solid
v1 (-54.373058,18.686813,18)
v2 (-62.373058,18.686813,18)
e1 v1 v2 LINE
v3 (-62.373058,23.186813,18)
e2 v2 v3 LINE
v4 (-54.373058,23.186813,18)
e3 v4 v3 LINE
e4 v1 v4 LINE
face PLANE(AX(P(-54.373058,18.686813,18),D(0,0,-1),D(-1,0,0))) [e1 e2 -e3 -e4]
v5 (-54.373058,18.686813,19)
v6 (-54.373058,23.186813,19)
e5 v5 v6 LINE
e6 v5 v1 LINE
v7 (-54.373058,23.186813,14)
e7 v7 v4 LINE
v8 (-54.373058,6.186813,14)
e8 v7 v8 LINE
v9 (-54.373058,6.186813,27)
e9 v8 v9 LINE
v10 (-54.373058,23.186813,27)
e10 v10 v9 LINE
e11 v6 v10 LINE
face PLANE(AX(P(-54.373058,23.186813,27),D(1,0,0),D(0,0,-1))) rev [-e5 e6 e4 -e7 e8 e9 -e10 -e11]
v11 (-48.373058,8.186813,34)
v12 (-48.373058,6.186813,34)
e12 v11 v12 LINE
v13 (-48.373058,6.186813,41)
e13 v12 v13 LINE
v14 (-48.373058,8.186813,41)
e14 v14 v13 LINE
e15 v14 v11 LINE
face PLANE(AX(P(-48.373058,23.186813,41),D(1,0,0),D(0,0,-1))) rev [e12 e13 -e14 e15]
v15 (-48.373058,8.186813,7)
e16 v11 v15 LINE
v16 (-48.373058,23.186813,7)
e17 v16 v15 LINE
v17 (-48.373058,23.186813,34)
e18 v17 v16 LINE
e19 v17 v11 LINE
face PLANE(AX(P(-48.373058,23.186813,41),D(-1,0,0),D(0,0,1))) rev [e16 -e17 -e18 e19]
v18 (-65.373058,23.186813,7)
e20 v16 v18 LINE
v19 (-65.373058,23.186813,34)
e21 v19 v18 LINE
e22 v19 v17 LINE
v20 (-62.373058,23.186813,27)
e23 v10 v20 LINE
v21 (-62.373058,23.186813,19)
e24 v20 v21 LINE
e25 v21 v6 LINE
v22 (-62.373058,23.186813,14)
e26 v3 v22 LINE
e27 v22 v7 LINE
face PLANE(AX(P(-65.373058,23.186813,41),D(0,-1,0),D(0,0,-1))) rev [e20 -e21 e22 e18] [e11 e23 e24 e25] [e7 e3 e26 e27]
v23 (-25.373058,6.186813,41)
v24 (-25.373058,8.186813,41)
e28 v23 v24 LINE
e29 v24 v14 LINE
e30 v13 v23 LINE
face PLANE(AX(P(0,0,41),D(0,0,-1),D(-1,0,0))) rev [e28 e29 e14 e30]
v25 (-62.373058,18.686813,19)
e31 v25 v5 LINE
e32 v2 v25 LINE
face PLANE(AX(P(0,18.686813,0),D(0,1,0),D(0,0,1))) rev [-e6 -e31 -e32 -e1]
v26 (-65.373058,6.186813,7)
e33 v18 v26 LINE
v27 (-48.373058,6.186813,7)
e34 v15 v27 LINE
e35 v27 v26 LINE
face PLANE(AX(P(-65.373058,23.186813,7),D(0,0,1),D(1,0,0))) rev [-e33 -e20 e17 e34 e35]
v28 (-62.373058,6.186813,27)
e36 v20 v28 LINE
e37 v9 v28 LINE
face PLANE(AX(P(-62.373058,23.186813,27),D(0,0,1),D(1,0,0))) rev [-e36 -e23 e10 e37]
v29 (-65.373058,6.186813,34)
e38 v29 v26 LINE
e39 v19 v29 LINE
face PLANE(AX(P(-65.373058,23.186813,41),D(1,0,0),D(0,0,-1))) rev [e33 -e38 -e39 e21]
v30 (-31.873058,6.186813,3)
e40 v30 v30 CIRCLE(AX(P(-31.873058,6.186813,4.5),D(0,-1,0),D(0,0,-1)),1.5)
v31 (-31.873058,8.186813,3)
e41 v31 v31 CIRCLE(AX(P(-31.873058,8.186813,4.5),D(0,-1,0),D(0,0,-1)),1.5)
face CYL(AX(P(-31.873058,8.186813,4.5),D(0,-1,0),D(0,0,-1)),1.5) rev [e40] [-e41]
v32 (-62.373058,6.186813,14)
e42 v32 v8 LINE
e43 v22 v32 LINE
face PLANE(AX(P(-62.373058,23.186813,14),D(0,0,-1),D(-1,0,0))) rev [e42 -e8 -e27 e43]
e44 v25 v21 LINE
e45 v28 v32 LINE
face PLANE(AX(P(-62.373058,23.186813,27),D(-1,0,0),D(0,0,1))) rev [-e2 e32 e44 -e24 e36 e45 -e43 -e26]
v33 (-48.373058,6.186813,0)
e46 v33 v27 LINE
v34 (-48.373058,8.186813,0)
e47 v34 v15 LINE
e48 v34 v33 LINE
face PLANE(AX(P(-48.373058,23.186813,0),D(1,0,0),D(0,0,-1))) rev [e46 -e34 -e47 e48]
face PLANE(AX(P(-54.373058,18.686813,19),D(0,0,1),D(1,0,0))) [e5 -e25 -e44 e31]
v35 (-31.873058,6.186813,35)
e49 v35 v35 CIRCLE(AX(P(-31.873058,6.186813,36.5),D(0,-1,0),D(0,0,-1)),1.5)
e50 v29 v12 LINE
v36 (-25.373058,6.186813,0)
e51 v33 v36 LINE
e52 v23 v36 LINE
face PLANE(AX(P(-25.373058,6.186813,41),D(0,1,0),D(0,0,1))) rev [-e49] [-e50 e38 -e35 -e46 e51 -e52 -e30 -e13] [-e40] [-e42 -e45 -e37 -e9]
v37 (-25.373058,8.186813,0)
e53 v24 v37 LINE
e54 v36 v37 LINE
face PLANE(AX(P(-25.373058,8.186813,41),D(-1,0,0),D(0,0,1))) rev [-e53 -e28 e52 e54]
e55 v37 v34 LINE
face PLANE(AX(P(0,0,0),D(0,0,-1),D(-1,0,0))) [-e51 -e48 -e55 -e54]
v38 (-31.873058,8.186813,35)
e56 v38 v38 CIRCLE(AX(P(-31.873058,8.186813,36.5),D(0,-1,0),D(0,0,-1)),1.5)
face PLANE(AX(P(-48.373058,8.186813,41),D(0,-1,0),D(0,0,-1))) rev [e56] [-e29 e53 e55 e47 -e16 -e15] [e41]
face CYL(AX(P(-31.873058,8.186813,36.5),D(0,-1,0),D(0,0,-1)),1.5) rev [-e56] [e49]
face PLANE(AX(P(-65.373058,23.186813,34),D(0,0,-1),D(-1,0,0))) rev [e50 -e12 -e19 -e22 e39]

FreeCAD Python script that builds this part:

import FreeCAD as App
import Part
import Sketcher
from FreeCAD import Vector
Q = App.Units.Quantity

doc = App.newDocument("Part")
params = doc.addObject("Spreadsheet::Sheet", "Params")
for row, (alias, value) in enumerate([
    ("sketch1_width", "17 mm"),
    ("sketch1_width2", "40 mm"),
    ("sketch1_height", "2 mm"),
    ("pad1_length", "41 mm"),
    ("sketch2_diameter", "3 mm"),
    ("pocket1_length", "2 mm"),
    ("sketch3_width", "8 mm"),
    ("sketch3_width2", "17 mm"),
    ("sketch3_height", "13 mm"),
    ("sketch3_height2", "7 mm"),
    ("pocket2_length", "17 mm"),
    ("sketch4_width", "8 mm"),
    ("sketch4_height", "1 mm"),
    ("pad2_length", "4.5 mm"),
], start=1):
    params.set(f"A{row}", alias)
    params.set(f"B{row}", "=" + value)
    params.setAlias(f"B{row}", alias)

body = doc.addObject("PartDesign::Body", "Body")

# Sketch on XY plane
sketch1 = body.newObject("Sketcher::SketchObject", "Sketch")
sketch1.AttachmentSupport = (doc.getObject("XY_Plane"), [""])
sketch1.MapMode = "FlatFace"
sketch1.addGeometry(Part.LineSegment(Vector(-48.4, 23.2, 0), Vector(-65.4, 23.2, 0)), False)
sketch1.addGeometry(Part.LineSegment(Vector(-65.4, 23.2, 0), Vector(-65.4, 6.2, 0)), False)
sketch1.addGeometry(Part.LineSegment(Vector(-65.4, 6.2, 0), Vector(-25.4, 6.2, 0)), False)
sketch1.addGeometry(Part.LineSegment(Vector(-25.4, 6.2, 0), Vector(-25.4, 8.2, 0)), False)
sketch1.addGeometry(Part.LineSegment(Vector(-25.4, 8.2, 0), Vector(-48.4, 8.2, 0)), False)
sketch1.addGeometry(Part.LineSegment(Vector(-48.4, 8.2, 0), Vector(-48.4, 23.2, 0)), False)
sketch1.addConstraint(Sketcher.Constraint("Coincident", 0, 2, 1, 1))
sketch1.addConstraint(Sketcher.Constraint("Coincident", 1, 2, 2, 1))
sketch1.addConstraint(Sketcher.Constraint("Coincident", 2, 2, 3, 1))
sketch1.addConstraint(Sketcher.Constraint("Coincident", 3, 2, 4, 1))
sketch1.addConstraint(Sketcher.Constraint("Coincident", 4, 2, 5, 1))
sketch1.addConstraint(Sketcher.Constraint("Coincident", 5, 2, 0, 1))
sketch1.addConstraint(Sketcher.Constraint("Horizontal", 0))
sketch1.addConstraint(Sketcher.Constraint("Vertical", 1))
sketch1.addConstraint(Sketcher.Constraint("Horizontal", 2))
sketch1.addConstraint(Sketcher.Constraint("Vertical", 3))
sketch1.addConstraint(Sketcher.Constraint("Horizontal", 4))
sketch1.addConstraint(Sketcher.Constraint("Vertical", 5))
sketch1.addConstraint(Sketcher.Constraint("Equal", 0, 1))
sketch1.addConstraint(Sketcher.Constraint("DistanceX", 0, 2, 0, 1, Q("17 mm")))
sketch1.addConstraint(Sketcher.Constraint("DistanceX", 2, 1, 2, 2, Q("40 mm")))
sketch1.addConstraint(Sketcher.Constraint("DistanceY", 3, 1, 3, 2, Q("2 mm")))
sketch1.addConstraint(Sketcher.Constraint("DistanceX", 0, 2, -1, 1, Q("65.373058 mm")))
sketch1.addConstraint(Sketcher.Constraint("DistanceY", -1, 1, 0, 2, Q("23.186813 mm")))
sketch1.setExpression("Constraints[13]", "Params.sketch1_width")
sketch1.setExpression("Constraints[14]", "Params.sketch1_width2")
sketch1.setExpression("Constraints[15]", "Params.sketch1_height")
pad1 = body.newObject("PartDesign::Pad", "Pad")
pad1.Profile = sketch1
pad1.setExpression("Length", "Params.pad1_length")

# Sketch on XZ plane
sketch2 = body.newObject("Sketcher::SketchObject", "Sketch001")
sketch2.AttachmentSupport = (doc.getObject("XZ_Plane"), [""])
sketch2.MapMode = "FlatFace"
sketch2.AttachmentOffset = App.Placement(Vector(0, 0, -6.186813), App.Rotation())
sketch2.addGeometry(Part.Circle(Vector(-31.9, 36.5, 0), Vector(0, 0, 1), 1.5), False)
sketch2.addGeometry(Part.Circle(Vector(-31.9, 4.5, 0), Vector(0, 0, 1), 1.5), False)
sketch2.addConstraint(Sketcher.Constraint("Equal", 0, 1))
sketch2.addConstraint(Sketcher.Constraint("Vertical", 0, 3, 1, 3))
sketch2.addConstraint(Sketcher.Constraint("Diameter", 0, Q("3 mm")))
sketch2.addConstraint(Sketcher.Constraint("DistanceY", 1, 3, 0, 3, Q("32 mm")))
sketch2.addConstraint(Sketcher.Constraint("DistanceY", -1, 1, 0, 3, Q("36.5 mm")))
sketch2.addConstraint(Sketcher.Constraint("DistanceX", 0, 3, -1, 1, Q("31.873058 mm")))
sketch2.setExpression("Constraints[2]", "Params.sketch2_diameter")
pocket1 = body.newObject("PartDesign::Pocket", "Pocket")
pocket1.Profile = sketch2
pocket1.setExpression("Length", "Params.pocket1_length")

# Sketch on XZ plane
sketch3 = body.newObject("Sketcher::SketchObject", "Sketch002")
sketch3.AttachmentSupport = (doc.getObject("XZ_Plane"), [""])
sketch3.MapMode = "FlatFace"
sketch3.AttachmentOffset = App.Placement(Vector(0, 0, -23.186813), App.Rotation())
sketch3.addGeometry(Part.LineSegment(Vector(-62, 27, 0), Vector(-62, 14, 0)), False)
sketch3.addGeometry(Part.LineSegment(Vector(-62, 14, 0), Vector(-54, 14, 0)), False)
sketch3.addGeometry(Part.LineSegment(Vector(-54, 14, 0), Vector(-54, 27, 0)), False)
sketch3.addGeometry(Part.LineSegment(Vector(-54, 27, 0), Vector(-62, 27, 0)), False)
sketch3.addGeometry(Part.LineSegment(Vector(-65, 41, 0), Vector(-65, 34, 0)), False)
sketch3.addGeometry(Part.LineSegment(Vector(-65, 34, 0), Vector(-48, 34, 0)), False)
sketch3.addGeometry(Part.LineSegment(Vector(-48, 34, 0), Vector(-48, 41, 0)), False)
sketch3.addGeometry(Part.LineSegment(Vector(-48, 41, 0), Vector(-65, 41, 0)), False)
sketch3.addGeometry(Part.LineSegment(Vector(-65, 7, 0), Vector(-65, 0, 0)), False)
sketch3.addGeometry(Part.LineSegment(Vector(-65, 0, 0), Vector(-48, 0, 0)), False)
sketch3.addGeometry(Part.LineSegment(Vector(-48, 0, 0), Vector(-48, 7, 0)), False)
sketch3.addGeometry(Part.LineSegment(Vector(-48, 7, 0), Vector(-65, 7, 0)), False)
sketch3.addConstraint(Sketcher.Constraint("Coincident", 0, 2, 1, 1))
sketch3.addConstraint(Sketcher.Constraint("Coincident", 1, 2, 2, 1))
sketch3.addConstraint(Sketcher.Constraint("Coincident", 2, 2, 3, 1))
sketch3.addConstraint(Sketcher.Constraint("Coincident", 3, 2, 0, 1))
sketch3.addConstraint(Sketcher.Constraint("Coincident", 4, 2, 5, 1))
sketch3.addConstraint(Sketcher.Constraint("Coincident", 5, 2, 6, 1))
sketch3.addConstraint(Sketcher.Constraint("Coincident", 6, 2, 7, 1))
sketch3.addConstraint(Sketcher.Constraint("Coincident", 7, 2, 4, 1))
sketch3.addConstraint(Sketcher.Constraint("Coincident", 8, 2, 9, 1))
sketch3.addConstraint(Sketcher.Constraint("Coincident", 9, 2, 10, 1))
sketch3.addConstraint(Sketcher.Constraint("Coincident", 10, 2, 11, 1))
sketch3.addConstraint(Sketcher.Constraint("Coincident", 11, 2, 8, 1))
sketch3.addConstraint(Sketcher.Constraint("Vertical", 0))
sketch3.addConstraint(Sketcher.Constraint("Horizontal", 1))
sketch3.addConstraint(Sketcher.Constraint("Vertical", 2))
sketch3.addConstraint(Sketcher.Constraint("Horizontal", 3))
sketch3.addConstraint(Sketcher.Constraint("Vertical", 4))
sketch3.addConstraint(Sketcher.Constraint("Horizontal", 5))
sketch3.addConstraint(Sketcher.Constraint("Vertical", 6))
sketch3.addConstraint(Sketcher.Constraint("Horizontal", 7))
sketch3.addConstraint(Sketcher.Constraint("Vertical", 8))
sketch3.addConstraint(Sketcher.Constraint("Horizontal", 9))
sketch3.addConstraint(Sketcher.Constraint("Vertical", 10))
sketch3.addConstraint(Sketcher.Constraint("Horizontal", 11))
sketch3.addConstraint(Sketcher.Constraint("PointOnObject", 8, 2, -1))
sketch3.addConstraint(Sketcher.Constraint("Vertical", 7, 2, 8, 2))
sketch3.addConstraint(Sketcher.Constraint("Vertical", 6, 2, 9, 2))
sketch3.addConstraint(Sketcher.Constraint("Equal", 6, 8))
sketch3.addConstraint(Sketcher.Constraint("DistanceX", 1, 1, 1, 2, Q("8 mm")))
sketch3.addConstraint(Sketcher.Constraint("DistanceX", 5, 1, 5, 2, Q("17 mm")))
sketch3.addConstraint(Sketcher.Constraint("DistanceY", 0, 2, 0, 1, Q("13 mm")))
sketch3.addConstraint(Sketcher.Constraint("DistanceY", 4, 2, 4, 1, Q("7 mm")))
sketch3.addConstraint(Sketcher.Constraint("DistanceY", -1, 1, 0, 2, Q("14 mm")))
sketch3.addConstraint(Sketcher.Constraint("DistanceY", -1, 1, 4, 2, Q("34 mm")))
sketch3.addConstraint(Sketcher.Constraint("DistanceX", 4, 2, 3, 2, Q("3 mm")))
sketch3.addConstraint(Sketcher.Constraint("DistanceX", 0, 2, -1, 1, Q("62.373058 mm")))
sketch3.setExpression("Constraints[28]", "Params.sketch3_width")
sketch3.setExpression("Constraints[29]", "Params.sketch3_width2")
sketch3.setExpression("Constraints[30]", "Params.sketch3_height")
sketch3.setExpression("Constraints[31]", "Params.sketch3_height2")
pocket2 = body.newObject("PartDesign::Pocket", "Pocket001")
pocket2.Profile = sketch3
pocket2.setExpression("Length", "Params.pocket2_length")
pocket2.Reversed = True

# Sketch on XZ plane
sketch4 = body.newObject("Sketcher::SketchObject", "Sketch003")
sketch4.AttachmentSupport = (doc.getObject("XZ_Plane"), [""])
sketch4.MapMode = "FlatFace"
sketch4.AttachmentOffset = App.Placement(Vector(0, 0, -23.186813), App.Rotation())
sketch4.addGeometry(Part.LineSegment(Vector(-62.4, 18, 0), Vector(-62.4, 19, 0)), False)
sketch4.addGeometry(Part.LineSegment(Vector(-62.4, 19, 0), Vector(-54.4, 19, 0)), False)
sketch4.addGeometry(Part.LineSegment(Vector(-54.4, 19, 0), Vector(-54.4, 18, 0)), False)
sketch4.addGeometry(Part.LineSegment(Vector(-54.4, 18, 0), Vector(-62.4, 18, 0)), False)
sketch4.addConstraint(Sketcher.Constraint("Coincident", 0, 2, 1, 1))
sketch4.addConstraint(Sketcher.Constraint("Coincident", 1, 2, 2, 1))
sketch4.addConstraint(Sketcher.Constraint("Coincident", 2, 2, 3, 1))
sketch4.addConstraint(Sketcher.Constraint("Coincident", 3, 2, 0, 1))
sketch4.addConstraint(Sketcher.Constraint("Vertical", 0))
sketch4.addConstraint(Sketcher.Constraint("Horizontal", 1))
sketch4.addConstraint(Sketcher.Constraint("Vertical", 2))
sketch4.addConstraint(Sketcher.Constraint("Horizontal", 3))
sketch4.addConstraint(Sketcher.Constraint("DistanceX", 1, 1, 1, 2, Q("8 mm")))
sketch4.addConstraint(Sketcher.Constraint("DistanceY", 0, 1, 0, 2, Q("1 mm")))
sketch4.addConstraint(Sketcher.Constraint("DistanceY", -1, 1, 0, 2, Q("19 mm")))
sketch4.addConstraint(Sketcher.Constraint("DistanceX", 0, 2, -1, 1, Q("62.373058 mm")))
sketch4.setExpression("Constraints[8]", "Params.sketch4_width")
sketch4.setExpression("Constraints[9]", "Params.sketch4_height")
pad2 = body.newObject("PartDesign::Pad", "Pad001")
pad2.Profile = sketch4
pad2.setExpression("Length", "Params.pad2_length")

doc.recompute()
